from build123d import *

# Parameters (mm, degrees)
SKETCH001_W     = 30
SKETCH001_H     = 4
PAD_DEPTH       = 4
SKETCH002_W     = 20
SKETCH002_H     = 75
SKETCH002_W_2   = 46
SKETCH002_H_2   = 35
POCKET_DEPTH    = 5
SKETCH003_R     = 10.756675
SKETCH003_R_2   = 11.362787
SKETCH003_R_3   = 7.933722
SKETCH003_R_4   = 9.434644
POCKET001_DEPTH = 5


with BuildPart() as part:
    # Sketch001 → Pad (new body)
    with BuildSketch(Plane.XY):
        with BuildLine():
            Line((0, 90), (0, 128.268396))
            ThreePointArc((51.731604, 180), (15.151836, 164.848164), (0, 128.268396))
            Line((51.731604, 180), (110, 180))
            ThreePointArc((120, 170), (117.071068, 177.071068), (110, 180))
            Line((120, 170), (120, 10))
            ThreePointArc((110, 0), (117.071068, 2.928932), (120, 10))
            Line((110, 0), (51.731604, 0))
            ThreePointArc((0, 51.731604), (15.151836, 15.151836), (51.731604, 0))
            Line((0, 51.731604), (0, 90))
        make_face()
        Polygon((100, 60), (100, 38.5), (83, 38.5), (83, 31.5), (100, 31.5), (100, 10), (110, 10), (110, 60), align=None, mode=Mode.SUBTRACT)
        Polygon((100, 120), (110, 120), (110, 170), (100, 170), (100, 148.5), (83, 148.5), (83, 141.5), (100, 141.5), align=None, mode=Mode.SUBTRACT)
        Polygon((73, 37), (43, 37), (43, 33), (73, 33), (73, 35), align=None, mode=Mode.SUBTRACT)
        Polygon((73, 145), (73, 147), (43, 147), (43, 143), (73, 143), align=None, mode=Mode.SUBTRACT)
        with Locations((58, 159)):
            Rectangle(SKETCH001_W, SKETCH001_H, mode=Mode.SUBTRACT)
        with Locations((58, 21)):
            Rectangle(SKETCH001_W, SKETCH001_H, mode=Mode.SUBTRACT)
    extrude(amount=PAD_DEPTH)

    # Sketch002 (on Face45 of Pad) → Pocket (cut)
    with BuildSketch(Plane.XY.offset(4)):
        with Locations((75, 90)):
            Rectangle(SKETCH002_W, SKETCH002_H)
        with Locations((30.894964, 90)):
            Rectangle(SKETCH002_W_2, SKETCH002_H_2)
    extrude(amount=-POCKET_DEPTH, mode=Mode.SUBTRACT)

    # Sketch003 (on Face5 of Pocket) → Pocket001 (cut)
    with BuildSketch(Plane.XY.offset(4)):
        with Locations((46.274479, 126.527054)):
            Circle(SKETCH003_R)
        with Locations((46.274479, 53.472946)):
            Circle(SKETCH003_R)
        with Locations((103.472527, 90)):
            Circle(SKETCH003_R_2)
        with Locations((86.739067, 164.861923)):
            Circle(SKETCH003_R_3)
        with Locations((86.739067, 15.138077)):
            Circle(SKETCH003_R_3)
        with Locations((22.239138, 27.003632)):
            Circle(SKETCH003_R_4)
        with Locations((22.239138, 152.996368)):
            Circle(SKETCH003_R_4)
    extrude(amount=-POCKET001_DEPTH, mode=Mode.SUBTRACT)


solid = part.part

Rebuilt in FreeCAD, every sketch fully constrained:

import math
import FreeCAD as App
import Part
import Sketcher
from FreeCAD import Vector

doc = App.newDocument("Part")
body = doc.addObject("PartDesign::Body", "Body")

# Sketch on XY plane
sketch1 = body.newObject("Sketcher::SketchObject", "Sketch")
sketch1.AttachmentSupport = (doc.getObject("XY_Plane"), [""])
sketch1.MapMode = "FlatFace"
sketch1.addGeometry([
    Part.ArcOfCircle(Part.Circle(Vector(51.731604, 128.268396, 0), Vector(0, 0, 1), 51.731604), math.radians(90), math.radians(180)),  # 0
    Part.LineSegment(Vector(0, 128.268396, 0), Vector(0, 51.731604, 0)),  # 1
    Part.ArcOfCircle(Part.Circle(Vector(51.731604, 51.731604, 0), Vector(0, 0, 1), 51.731604), math.radians(180), math.radians(270)),  # 2
    Part.LineSegment(Vector(51.731604, 0, 0), Vector(110, 0, 0)),  # 3
    Part.ArcOfCircle(Part.Circle(Vector(110.000001, 9.999999, 0), Vector(0, 0, 1), 9.999999), math.radians(-90.000004), math.radians(0.000004)),  # 4
    Part.LineSegment(Vector(120, 10, 0), Vector(120, 170, 0)),  # 5
    Part.ArcOfCircle(Part.Circle(Vector(110.000001, 170.000001, 0), Vector(0, 0, 1), 9.999999), math.radians(-0.000004), math.radians(90.000004)),  # 6
    Part.LineSegment(Vector(110, 180, 0), Vector(51.731604, 180, 0)),  # 7
    Part.LineSegment(Vector(73, 19, 0), Vector(43, 19, 0)),  # 8
    Part.LineSegment(Vector(43, 19, 0), Vector(43, 23, 0)),  # 9
    Part.LineSegment(Vector(43, 23, 0), Vector(73, 23, 0)),  # 10
    Part.LineSegment(Vector(73, 23, 0), Vector(73, 19, 0)),  # 11
    Part.LineSegment(Vector(43, 37, 0), Vector(73, 37, 0)),  # 12
    Part.LineSegment(Vector(73, 37, 0), Vector(73, 33, 0)),  # 13
    Part.LineSegment(Vector(73, 33, 0), Vector(43, 33, 0)),  # 14
    Part.LineSegment(Vector(43, 33, 0), Vector(43, 37, 0)),  # 15
    Part.LineSegment(Vector(100, 38.5, 0), Vector(100, 60, 0)),  # 16
    Part.LineSegment(Vector(100, 60, 0), Vector(110, 60, 0)),  # 17
    Part.LineSegment(Vector(110, 60, 0), Vector(110, 10, 0)),  # 18
    Part.LineSegment(Vector(110, 10, 0), Vector(100, 10, 0)),  # 19
    Part.LineSegment(Vector(100, 10, 0), Vector(100, 31.5, 0)),  # 20
    Part.LineSegment(Vector(100, 31.5, 0), Vector(83, 31.5, 0)),  # 21
    Part.LineSegment(Vector(83, 31.5, 0), Vector(83, 38.5, 0)),  # 22
    Part.LineSegment(Vector(83, 38.5, 0), Vector(100, 38.5, 0)),  # 23
    Part.LineSegment(Vector(73, 147, 0), Vector(73, 143, 0)),  # 24
    Part.LineSegment(Vector(73, 143, 0), Vector(43, 143, 0)),  # 25
    Part.LineSegment(Vector(43, 143, 0), Vector(43, 147, 0)),  # 26
    Part.LineSegment(Vector(43, 147, 0), Vector(73, 147, 0)),  # 27
    Part.LineSegment(Vector(73, 157, 0), Vector(43, 157, 0)),  # 28
    Part.LineSegment(Vector(43, 157, 0), Vector(43, 161, 0)),  # 29
    Part.LineSegment(Vector(43, 161, 0), Vector(73, 161, 0)),  # 30
    Part.LineSegment(Vector(73, 161, 0), Vector(73, 157, 0)),  # 31
    Part.LineSegment(Vector(110, 120, 0), Vector(100, 120, 0)),  # 32
    Part.LineSegment(Vector(100, 120, 0), Vector(100, 141.5, 0)),  # 33
    Part.LineSegment(Vector(100, 141.5, 0), Vector(83, 141.5, 0)),  # 34
    Part.LineSegment(Vector(83, 141.5, 0), Vector(83, 148.5, 0)),  # 35
    Part.LineSegment(Vector(83, 148.5, 0), Vector(100, 148.5, 0)),  # 36
    Part.LineSegment(Vector(100, 148.5, 0), Vector(100, 170, 0)),  # 37
    Part.LineSegment(Vector(100, 170, 0), Vector(110, 170, 0)),  # 38
    Part.LineSegment(Vector(110, 170, 0), Vector(110, 120, 0)),  # 39
], False)
sketch1.addConstraint([
    Sketcher.Constraint("Tangent", 0, 2, 1, 1),
    Sketcher.Constraint("Tangent", 1, 2, 2, 1),
    Sketcher.Constraint("Tangent", 2, 2, 3, 1),
    Sketcher.Constraint("Tangent", 3, 2, 4, 1),
    Sketcher.Constraint("Tangent", 4, 2, 5, 1),
    Sketcher.Constraint("Tangent", 5, 2, 6, 1),
    Sketcher.Constraint("Tangent", 6, 2, 7, 1),
    Sketcher.Constraint("Tangent", 7, 2, 0, 1),
    Sketcher.Constraint("Coincident", 8, 2, 9, 1),
    Sketcher.Constraint("Coincident", 9, 2, 10, 1),
    Sketcher.Constraint("Coincident", 10, 2, 11, 1),
    Sketcher.Constraint("Coincident", 11, 2, 8, 1),
    Sketcher.Constraint("Coincident", 12, 2, 13, 1),
    Sketcher.Constraint("Coincident", 13, 2, 14, 1),
    Sketcher.Constraint("Coincident", 14, 2, 15, 1),
    Sketcher.Constraint("Coincident", 15, 2, 12, 1),
    Sketcher.Constraint("Coincident", 16, 2, 17, 1),
    Sketcher.Constraint("Coincident", 17, 2, 18, 1),
    Sketcher.Constraint("Coincident", 18, 2, 19, 1),
    Sketcher.Constraint("Coincident", 19, 2, 20, 1),
    Sketcher.Constraint("Coincident", 20, 2, 21, 1),
    Sketcher.Constraint("Coincident", 21, 2, 22, 1),
    Sketcher.Constraint("Coincident", 22, 2, 23, 1),
    Sketcher.Constraint("Coincident", 23, 2, 16, 1),
    Sketcher.Constraint("Coincident", 24, 2, 25, 1),
    Sketcher.Constraint("Coincident", 25, 2, 26, 1),
    Sketcher.Constraint("Coincident", 26, 2, 27, 1),
    Sketcher.Constraint("Coincident", 27, 2, 24, 1),
    Sketcher.Constraint("Coincident", 28, 2, 29, 1),
    Sketcher.Constraint("Coincident", 29, 2, 30, 1),
    Sketcher.Constraint("Coincident", 30, 2, 31, 1),
    Sketcher.Constraint("Coincident", 31, 2, 28, 1),
    Sketcher.Constraint("Coincident", 32, 2, 33, 1),
    Sketcher.Constraint("Coincident", 33, 2, 34, 1),
    Sketcher.Constraint("Coincident", 34, 2, 35, 1),
    Sketcher.Constraint("Coincident", 35, 2, 36, 1),
    Sketcher.Constraint("Coincident", 36, 2, 37, 1),
    Sketcher.Constraint("Coincident", 37, 2, 38, 1),
    Sketcher.Constraint("Coincident", 38, 2, 39, 1),
    Sketcher.Constraint("Coincident", 39, 2, 32, 1),
    Sketcher.Constraint("Vertical", 1),
    Sketcher.Constraint("Horizontal", 3),
    Sketcher.Constraint("Vertical", 5),
    Sketcher.Constraint("Horizontal", 7),
    Sketcher.Constraint("Horizontal", 8),
    Sketcher.Constraint("Vertical", 9),
    Sketcher.Constraint("Horizontal", 10),
    Sketcher.Constraint("Vertical", 11),
    Sketcher.Constraint("Horizontal", 12),
    Sketcher.Constraint("Vertical", 13),
    Sketcher.Constraint("Horizontal", 14),
    Sketcher.Constraint("Vertical", 15),
    Sketcher.Constraint("Vertical", 16),
    Sketcher.Constraint("Horizontal", 17),
    Sketcher.Constraint("Vertical", 18),
    Sketcher.Constraint("Horizontal", 19),
    Sketcher.Constraint("Vertical", 20),
    Sketcher.Constraint("Horizontal", 21),
    Sketcher.Constraint("Vertical", 22),
    Sketcher.Constraint("Horizontal", 23),
    Sketcher.Constraint("Vertical", 24),
    Sketcher.Constraint("Horizontal", 25),
    Sketcher.Constraint("Vertical", 26),
    Sketcher.Constraint("Horizontal", 27),
    Sketcher.Constraint("Horizontal", 28),
    Sketcher.Constraint("Vertical", 29),
    Sketcher.Constraint("Horizontal", 30),
    Sketcher.Constraint("Vertical", 31),
    Sketcher.Constraint("Horizontal", 32),
    Sketcher.Constraint("Vertical", 33),
    Sketcher.Constraint("Horizontal", 34),
    Sketcher.Constraint("Vertical", 35),
    Sketcher.Constraint("Horizontal", 36),
    Sketcher.Constraint("Vertical", 37),
    Sketcher.Constraint("Horizontal", 38),
    Sketcher.Constraint("Vertical", 39),
    Sketcher.Constraint("Coincident", 18, 2, 4, 3),
    Sketcher.Constraint("Coincident", 38, 2, 6, 3),
    Sketcher.Constraint("Equal", 0, 2),
    Sketcher.Constraint("Equal", 4, 6),
    Sketcher.Constraint("PointOnObject", 0, 2, -2),
    Sketcher.Constraint("PointOnObject", 2, 2, -1),
    Sketcher.Constraint("Vertical", 11, 2, 12, 2),
    Sketcher.Constraint("Vertical", 9, 2, 14, 2),
    Sketcher.Constraint("Vertical", 16, 2, 19, 2),
    Sketcher.Constraint("Vertical", 13, 2, 24, 2),
    Sketcher.Constraint("Vertical", 15, 2, 25, 2),
    Sketcher.Constraint("Vertical", 26, 2, 28, 2),
    Sketcher.Constraint("Vertical", 27, 2, 30, 2),
    Sketcher.Constraint("Vertical", 23, 2, 32, 2),
    Sketcher.Constraint("Vertical", 22, 2, 34, 2),
    Sketcher.Constraint("Vertical", 33, 2, 36, 2),
    Sketcher.Constraint("Equal", 11, 13),
    Sketcher.Constraint("Equal", 16, 20),
    Sketcher.Constraint("Equal", 15, 24),
    Sketcher.Constraint("Equal", 26, 29),
    Sketcher.Constraint("Equal", 20, 33),
    Sketcher.Constraint("Equal", 22, 35),
    Sketcher.Constraint("Equal", 33, 37),
    Sketcher.Constraint("Radius", 4, 9.999999),
    Sketcher.Constraint("DistanceX", 8, 2, 8, 1, 30.0),
    Sketcher.Constraint("DistanceX", 17, 1, 17, 2, 10.0),
    Sketcher.Constraint("DistanceX", 21, 2, 21, 1, 17.0),
    Sketcher.Constraint("DistanceY", 5, 1, 5, 2, 160.0),
    Sketcher.Constraint("DistanceY", 9, 1, 9, 2, 4.0),
    Sketcher.Constraint("DistanceY", 18, 2, 18, 1, 50.0),
    Sketcher.Constraint("DistanceY", 22, 1, 22, 2, 7.0),
    Sketcher.Constraint("DistanceX", -1, 1, 4, 3, 110.000001),
    Sketcher.Constraint("DistanceX", -1, 1, 8, 2, 43.0),
    Sketcher.Constraint("DistanceY", -1, 1, 8, 2, 19.0),
    Sketcher.Constraint("DistanceY", -1, 1, 12, 2, 37.0),
    Sketcher.Constraint("DistanceY", -1, 1, 24, 2, 143.0),
    Sketcher.Constraint("DistanceY", -1, 1, 28, 2, 157.0),
    Sketcher.Constraint("Radius", 0, 51.731604),
])
pad1 = body.newObject("PartDesign::Pad", "Pad")
pad1.Profile = sketch1
pad1.Length = 4

# Sketch on XY plane
sketch2 = body.newObject("Sketcher::SketchObject", "Sketch001")
sketch2.AttachmentSupport = (doc.getObject("XY_Plane"), [""])
sketch2.MapMode = "FlatFace"
sketch2.AttachmentOffset = App.Placement(Vector(0, 0, 4), App.Rotation())
sketch2.addGeometry([
    Part.LineSegment(Vector(65, 127.5, 0), Vector(65, 52.5, 0)),  # 0
    Part.LineSegment(Vector(65, 52.5, 0), Vector(85, 52.5, 0)),  # 1
    Part.LineSegment(Vector(85, 52.5, 0), Vector(85, 127.5, 0)),  # 2
    Part.LineSegment(Vector(85, 127.5, 0), Vector(65, 127.5, 0)),  # 3
    Part.LineSegment(Vector(7.894964, 107.5, 0), Vector(7.894964, 72.5, 0)),  # 4
    Part.LineSegment(Vector(7.894964, 72.5, 0), Vector(53.894964, 72.5, 0)),  # 5
    Part.LineSegment(Vector(53.894964, 72.5, 0), Vector(53.894964, 107.5, 0)),  # 6
    Part.LineSegment(Vector(53.894964, 107.5, 0), Vector(7.894964, 107.5, 0)),  # 7
], False)
sketch2.addConstraint([
    Sketcher.Constraint("Coincident", 0, 2, 1, 1),
    Sketcher.Constraint("Coincident", 1, 2, 2, 1),
    Sketcher.Constraint("Coincident", 2, 2, 3, 1),
    Sketcher.Constraint("Coincident", 3, 2, 0, 1),
    Sketcher.Constraint("Coincident", 4, 2, 5, 1),
    Sketcher.Constraint("Coincident", 5, 2, 6, 1),
    Sketcher.Constraint("Coincident", 6, 2, 7, 1),
    Sketcher.Constraint("Coincident", 7, 2, 4, 1),
    Sketcher.Constraint("Vertical", 0),
    Sketcher.Constraint("Horizontal", 1),
    Sketcher.Constraint("Vertical", 2),
    Sketcher.Constraint("Horizontal", 3),
    Sketcher.Constraint("Vertical", 4),
    Sketcher.Constraint("Horizontal", 5),
    Sketcher.Constraint("Vertical", 6),
    Sketcher.Constraint("Horizontal", 7),
    Sketcher.Constraint("DistanceX", 1, 1, 1, 2, 20.0),
    Sketcher.Constraint("DistanceX", 5, 1, 5, 2, 46.0),
    Sketcher.Constraint("DistanceY", 0, 2, 0, 1, 75.0),
    Sketcher.Constraint("DistanceY", 4, 2, 4, 1, 35.0),
    Sketcher.Constraint("DistanceX", -1, 1, 0, 2, 65.0),
    Sketcher.Constraint("DistanceY", 0, 2, 4, 2, 20.0),
    Sketcher.Constraint("DistanceY", -1, 1, 0, 2, 52.5),
    Sketcher.Constraint("DistanceX", -1, 1, 4, 2, 7.894964),
])
pocket1 = body.newObject("PartDesign::Pocket", "Pocket")
pocket1.Profile = sketch2
pocket1.Length = 5

# Sketch on XY plane
sketch3 = body.newObject("Sketcher::SketchObject", "Sketch002")
sketch3.AttachmentSupport = (doc.getObject("XY_Plane"), [""])
sketch3.MapMode = "FlatFace"
sketch3.AttachmentOffset = App.Placement(Vector(0, 0, 4), App.Rotation())
sketch3.addGeometry([
    Part.Circle(Vector(46.274479, 126.527054, 0), Vector(0, 0, 1), 10.756675),  # 0
    Part.Circle(Vector(46.274479, 53.472946, 0), Vector(0, 0, 1), 10.756675),  # 1
    Part.Circle(Vector(103.472527, 90, 0), Vector(0, 0, 1), 11.362787),  # 2
    Part.Circle(Vector(86.739067, 164.861923, 0), Vector(0, 0, 1), 7.933722),  # 3
    Part.Circle(Vector(86.739067, 15.138077, 0), Vector(0, 0, 1), 7.933722),  # 4
    Part.Circle(Vector(22.239138, 27.003632, 0), Vector(0, 0, 1), 9.434644),  # 5
    Part.Circle(Vector(22.239138, 152.996368, 0), Vector(0, 0, 1), 9.434644),  # 6
], False)
sketch3.addConstraint([
    Sketcher.Constraint("Equal", 0, 1),
    Sketcher.Constraint("Equal", 3, 4),
    Sketcher.Constraint("Equal", 5, 6),
    Sketcher.Constraint("Vertical", 0, 3, 1, 3),
    Sketcher.Constraint("Vertical", 3, 3, 4, 3),
    Sketcher.Constraint("Vertical", 5, 3, 6, 3),
    Sketcher.Constraint("DistanceY", -1, 1, 2, 3, 90.0),
    Sketcher.Constraint("Diameter", 0, 21.51335),
    Sketcher.Constraint("Diameter", 5, 18.869288),
    Sketcher.Constraint("Diameter", 2, 22.725574),
    Sketcher.Constraint("Diameter", 3, 15.867444),
    Sketcher.Constraint("DistanceX", -1, 1, 0, 3, 46.274479),
    Sketcher.Constraint("DistanceX", -1, 1, 5, 3, 22.239138),
    Sketcher.Constraint("DistanceY", -1, 1, 5, 3, 27.003632),
    Sketcher.Constraint("DistanceY", 1, 3, 0, 3, 73.054108),
    Sketcher.Constraint("DistanceX", 0, 3, 3, 3, 40.464588),
    Sketcher.Constraint("DistanceY", 0, 3, 3, 3, 38.334869),
    Sketcher.Constraint("DistanceX", 3, 3, 2, 3, 16.73346),
    Sketcher.Constraint("DistanceY", 4, 3, 1, 3, 38.334869),
    Sketcher.Constraint("DistanceY", 5, 3, 3, 3, 137.858291),
    Sketcher.Constraint("DistanceY", 1, 3, 6, 3, 99.523422),
])
pocket2 = body.newObject("PartDesign::Pocket", "Pocket001")
pocket2.Profile = sketch3
pocket2.Length = 5

doc.recompute()
